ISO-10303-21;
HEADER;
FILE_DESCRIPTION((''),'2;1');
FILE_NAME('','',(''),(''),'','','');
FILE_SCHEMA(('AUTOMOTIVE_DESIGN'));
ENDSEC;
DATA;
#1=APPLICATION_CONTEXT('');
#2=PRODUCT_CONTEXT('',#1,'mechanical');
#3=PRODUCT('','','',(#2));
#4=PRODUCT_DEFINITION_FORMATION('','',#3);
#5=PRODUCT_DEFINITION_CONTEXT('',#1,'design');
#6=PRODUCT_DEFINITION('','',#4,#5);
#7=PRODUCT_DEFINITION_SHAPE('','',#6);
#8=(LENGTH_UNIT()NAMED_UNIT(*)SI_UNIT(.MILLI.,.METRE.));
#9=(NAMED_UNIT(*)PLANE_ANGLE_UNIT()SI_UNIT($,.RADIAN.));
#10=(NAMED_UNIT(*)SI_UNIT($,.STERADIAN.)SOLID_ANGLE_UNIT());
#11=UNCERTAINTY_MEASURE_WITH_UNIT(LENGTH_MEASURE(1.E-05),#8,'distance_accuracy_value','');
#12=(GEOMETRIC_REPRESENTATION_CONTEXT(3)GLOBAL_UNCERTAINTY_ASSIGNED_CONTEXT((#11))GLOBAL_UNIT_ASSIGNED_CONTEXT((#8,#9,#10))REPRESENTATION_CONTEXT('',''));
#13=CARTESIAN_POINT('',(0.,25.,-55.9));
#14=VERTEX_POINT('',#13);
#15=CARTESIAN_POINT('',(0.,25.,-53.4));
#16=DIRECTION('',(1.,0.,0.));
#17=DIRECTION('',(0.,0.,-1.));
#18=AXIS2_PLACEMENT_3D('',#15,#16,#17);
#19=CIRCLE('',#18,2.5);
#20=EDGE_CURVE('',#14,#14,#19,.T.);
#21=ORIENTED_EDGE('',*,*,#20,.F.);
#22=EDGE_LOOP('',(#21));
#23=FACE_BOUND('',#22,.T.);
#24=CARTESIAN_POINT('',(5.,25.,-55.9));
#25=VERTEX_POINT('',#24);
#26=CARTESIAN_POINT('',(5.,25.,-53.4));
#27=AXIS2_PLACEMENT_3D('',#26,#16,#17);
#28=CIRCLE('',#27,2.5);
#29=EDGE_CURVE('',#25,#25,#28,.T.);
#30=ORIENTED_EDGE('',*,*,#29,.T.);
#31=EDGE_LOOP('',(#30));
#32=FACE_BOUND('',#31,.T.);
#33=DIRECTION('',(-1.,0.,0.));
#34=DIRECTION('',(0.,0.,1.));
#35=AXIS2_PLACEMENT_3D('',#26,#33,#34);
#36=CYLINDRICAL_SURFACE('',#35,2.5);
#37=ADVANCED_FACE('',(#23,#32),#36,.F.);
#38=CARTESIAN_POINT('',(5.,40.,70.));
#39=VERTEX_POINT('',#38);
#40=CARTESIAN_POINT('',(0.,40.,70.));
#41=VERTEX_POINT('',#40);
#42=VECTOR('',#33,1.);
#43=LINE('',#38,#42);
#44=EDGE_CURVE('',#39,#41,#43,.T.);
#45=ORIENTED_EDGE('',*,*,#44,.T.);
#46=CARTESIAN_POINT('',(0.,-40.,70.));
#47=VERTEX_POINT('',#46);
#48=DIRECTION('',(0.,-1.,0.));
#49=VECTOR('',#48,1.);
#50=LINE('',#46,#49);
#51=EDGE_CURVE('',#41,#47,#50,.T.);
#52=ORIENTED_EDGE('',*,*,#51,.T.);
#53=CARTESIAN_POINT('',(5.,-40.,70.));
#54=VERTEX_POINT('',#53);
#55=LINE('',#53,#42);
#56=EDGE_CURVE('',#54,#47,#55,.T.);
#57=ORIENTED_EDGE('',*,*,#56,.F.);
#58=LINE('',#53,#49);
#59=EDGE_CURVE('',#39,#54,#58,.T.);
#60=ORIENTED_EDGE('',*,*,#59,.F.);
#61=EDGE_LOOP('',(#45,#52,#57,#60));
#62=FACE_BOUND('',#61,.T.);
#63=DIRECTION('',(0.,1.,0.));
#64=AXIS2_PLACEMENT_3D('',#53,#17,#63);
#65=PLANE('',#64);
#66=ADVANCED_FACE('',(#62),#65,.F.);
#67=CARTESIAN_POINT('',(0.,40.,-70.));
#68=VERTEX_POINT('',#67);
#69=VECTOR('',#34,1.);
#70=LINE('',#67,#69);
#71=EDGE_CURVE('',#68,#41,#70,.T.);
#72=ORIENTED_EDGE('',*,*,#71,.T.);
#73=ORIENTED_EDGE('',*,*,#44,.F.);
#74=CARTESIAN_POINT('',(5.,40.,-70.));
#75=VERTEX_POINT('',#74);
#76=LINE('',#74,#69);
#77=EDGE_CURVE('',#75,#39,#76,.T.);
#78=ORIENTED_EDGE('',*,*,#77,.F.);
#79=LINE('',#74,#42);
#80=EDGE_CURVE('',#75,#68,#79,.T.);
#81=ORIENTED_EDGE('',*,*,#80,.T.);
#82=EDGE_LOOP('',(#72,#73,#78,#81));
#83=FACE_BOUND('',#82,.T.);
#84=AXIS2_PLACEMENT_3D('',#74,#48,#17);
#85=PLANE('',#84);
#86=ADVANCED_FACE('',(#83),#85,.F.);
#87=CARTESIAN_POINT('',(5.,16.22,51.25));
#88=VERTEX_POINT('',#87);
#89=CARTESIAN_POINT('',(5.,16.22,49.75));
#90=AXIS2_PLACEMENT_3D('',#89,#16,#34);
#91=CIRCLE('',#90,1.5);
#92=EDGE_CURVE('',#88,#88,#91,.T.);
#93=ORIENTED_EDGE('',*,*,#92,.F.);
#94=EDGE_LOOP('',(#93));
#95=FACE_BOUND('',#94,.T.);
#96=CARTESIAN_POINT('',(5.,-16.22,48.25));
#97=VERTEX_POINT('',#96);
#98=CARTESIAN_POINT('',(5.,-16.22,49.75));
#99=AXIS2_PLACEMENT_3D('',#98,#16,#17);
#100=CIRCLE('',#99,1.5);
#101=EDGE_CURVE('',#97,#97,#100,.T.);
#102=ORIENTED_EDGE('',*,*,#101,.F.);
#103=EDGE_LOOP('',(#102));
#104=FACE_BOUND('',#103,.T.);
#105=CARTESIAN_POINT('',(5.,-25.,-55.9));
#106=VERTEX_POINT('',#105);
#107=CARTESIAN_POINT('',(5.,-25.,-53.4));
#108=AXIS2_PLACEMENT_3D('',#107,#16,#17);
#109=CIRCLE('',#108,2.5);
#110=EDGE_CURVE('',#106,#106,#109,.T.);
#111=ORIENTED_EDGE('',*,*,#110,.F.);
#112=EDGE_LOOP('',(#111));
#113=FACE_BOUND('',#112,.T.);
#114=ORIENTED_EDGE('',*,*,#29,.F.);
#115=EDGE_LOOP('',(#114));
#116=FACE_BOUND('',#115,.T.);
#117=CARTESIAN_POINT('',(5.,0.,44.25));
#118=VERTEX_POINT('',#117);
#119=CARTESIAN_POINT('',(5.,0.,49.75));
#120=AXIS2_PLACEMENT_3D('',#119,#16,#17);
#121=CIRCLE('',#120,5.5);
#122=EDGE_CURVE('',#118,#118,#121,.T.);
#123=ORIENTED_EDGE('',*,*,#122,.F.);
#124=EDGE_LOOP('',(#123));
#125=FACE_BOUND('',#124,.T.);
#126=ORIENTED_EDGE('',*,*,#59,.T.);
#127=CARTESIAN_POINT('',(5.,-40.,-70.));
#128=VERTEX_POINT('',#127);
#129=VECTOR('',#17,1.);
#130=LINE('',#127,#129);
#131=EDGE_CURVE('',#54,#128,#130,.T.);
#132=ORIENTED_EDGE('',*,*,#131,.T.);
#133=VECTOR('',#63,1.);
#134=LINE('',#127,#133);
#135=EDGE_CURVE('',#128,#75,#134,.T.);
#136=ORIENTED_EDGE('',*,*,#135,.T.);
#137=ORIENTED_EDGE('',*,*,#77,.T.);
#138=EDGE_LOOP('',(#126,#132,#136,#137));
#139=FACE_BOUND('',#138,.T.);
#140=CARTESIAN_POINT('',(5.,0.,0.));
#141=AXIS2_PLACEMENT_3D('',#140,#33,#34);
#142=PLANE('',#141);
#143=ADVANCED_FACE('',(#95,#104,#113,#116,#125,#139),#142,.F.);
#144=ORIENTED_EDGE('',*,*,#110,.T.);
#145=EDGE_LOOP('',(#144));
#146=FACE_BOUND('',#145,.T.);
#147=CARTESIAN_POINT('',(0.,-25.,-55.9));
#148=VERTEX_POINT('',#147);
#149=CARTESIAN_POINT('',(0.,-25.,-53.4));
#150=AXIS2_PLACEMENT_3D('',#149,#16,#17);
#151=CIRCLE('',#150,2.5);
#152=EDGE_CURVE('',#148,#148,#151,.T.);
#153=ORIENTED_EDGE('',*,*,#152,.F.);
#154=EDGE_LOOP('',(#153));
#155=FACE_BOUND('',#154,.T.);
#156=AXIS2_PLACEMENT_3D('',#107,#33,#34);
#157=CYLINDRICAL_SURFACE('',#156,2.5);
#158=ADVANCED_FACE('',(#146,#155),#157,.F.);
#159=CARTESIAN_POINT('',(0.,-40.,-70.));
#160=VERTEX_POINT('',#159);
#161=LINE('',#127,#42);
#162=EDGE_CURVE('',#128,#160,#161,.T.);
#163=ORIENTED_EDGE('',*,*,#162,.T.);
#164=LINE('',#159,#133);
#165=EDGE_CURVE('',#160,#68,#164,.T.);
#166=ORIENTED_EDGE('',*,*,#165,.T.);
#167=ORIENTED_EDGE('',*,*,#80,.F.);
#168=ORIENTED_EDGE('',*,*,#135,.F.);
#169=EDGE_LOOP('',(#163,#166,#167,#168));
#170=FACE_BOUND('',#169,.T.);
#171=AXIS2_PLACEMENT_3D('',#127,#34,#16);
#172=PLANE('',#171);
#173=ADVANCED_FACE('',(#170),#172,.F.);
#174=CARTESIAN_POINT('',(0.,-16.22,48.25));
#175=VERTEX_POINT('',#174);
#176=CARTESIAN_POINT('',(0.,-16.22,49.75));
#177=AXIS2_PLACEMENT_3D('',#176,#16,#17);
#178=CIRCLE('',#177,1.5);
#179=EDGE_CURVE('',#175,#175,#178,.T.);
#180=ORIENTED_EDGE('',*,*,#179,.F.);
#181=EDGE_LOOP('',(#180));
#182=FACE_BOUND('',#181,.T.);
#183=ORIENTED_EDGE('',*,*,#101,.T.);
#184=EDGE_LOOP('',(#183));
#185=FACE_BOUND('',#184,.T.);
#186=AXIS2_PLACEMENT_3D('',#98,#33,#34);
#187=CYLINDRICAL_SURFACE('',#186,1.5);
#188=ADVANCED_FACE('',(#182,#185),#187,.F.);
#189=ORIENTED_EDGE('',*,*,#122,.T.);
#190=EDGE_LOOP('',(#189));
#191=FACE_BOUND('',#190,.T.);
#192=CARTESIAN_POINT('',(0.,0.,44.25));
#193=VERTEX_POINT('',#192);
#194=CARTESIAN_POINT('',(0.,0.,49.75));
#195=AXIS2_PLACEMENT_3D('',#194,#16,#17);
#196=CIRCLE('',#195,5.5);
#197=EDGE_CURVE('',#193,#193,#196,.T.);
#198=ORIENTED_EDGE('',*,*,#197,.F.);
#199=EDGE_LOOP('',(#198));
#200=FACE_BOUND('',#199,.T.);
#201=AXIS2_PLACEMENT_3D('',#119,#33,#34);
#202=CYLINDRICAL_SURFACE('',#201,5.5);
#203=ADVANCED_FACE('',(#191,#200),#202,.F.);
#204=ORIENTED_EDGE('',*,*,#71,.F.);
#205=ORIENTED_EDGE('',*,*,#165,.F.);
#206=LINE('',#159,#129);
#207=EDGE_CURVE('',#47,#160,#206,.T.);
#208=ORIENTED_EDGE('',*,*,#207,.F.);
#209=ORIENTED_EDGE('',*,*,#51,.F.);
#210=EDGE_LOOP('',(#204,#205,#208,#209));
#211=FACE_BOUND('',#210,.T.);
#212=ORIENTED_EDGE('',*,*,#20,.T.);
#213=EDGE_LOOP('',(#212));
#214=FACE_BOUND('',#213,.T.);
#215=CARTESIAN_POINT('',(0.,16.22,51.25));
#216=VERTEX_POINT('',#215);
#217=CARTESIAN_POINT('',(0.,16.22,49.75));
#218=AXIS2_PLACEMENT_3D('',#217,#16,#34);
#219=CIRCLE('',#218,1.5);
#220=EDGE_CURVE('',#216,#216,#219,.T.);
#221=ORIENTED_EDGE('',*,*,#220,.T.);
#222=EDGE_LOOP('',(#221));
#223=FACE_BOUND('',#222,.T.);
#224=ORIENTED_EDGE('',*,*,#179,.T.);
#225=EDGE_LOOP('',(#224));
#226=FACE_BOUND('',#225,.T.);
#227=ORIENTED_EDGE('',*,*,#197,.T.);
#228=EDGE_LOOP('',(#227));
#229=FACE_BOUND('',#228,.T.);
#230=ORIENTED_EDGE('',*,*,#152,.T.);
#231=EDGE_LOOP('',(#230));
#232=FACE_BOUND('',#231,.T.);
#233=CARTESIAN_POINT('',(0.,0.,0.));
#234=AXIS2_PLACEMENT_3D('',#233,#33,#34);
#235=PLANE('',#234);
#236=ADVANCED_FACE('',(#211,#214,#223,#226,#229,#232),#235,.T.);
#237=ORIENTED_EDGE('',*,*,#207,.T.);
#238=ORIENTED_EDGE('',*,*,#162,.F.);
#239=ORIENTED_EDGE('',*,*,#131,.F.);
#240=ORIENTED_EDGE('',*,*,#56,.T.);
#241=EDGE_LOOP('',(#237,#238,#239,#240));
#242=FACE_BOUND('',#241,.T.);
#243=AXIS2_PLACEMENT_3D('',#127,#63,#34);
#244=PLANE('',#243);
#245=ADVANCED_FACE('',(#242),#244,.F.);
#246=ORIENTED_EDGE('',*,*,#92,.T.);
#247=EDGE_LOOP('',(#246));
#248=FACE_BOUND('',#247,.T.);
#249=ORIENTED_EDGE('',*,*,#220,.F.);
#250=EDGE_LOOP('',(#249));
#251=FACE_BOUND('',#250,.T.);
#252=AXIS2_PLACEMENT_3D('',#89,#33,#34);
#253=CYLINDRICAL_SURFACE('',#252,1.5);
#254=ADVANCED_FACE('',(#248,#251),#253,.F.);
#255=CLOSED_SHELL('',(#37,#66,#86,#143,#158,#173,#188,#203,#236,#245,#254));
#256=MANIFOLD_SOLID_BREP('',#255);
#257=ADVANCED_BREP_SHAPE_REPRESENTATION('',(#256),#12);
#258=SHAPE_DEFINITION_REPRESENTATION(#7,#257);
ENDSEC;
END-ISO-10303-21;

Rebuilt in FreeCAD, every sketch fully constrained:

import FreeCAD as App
import Part
import Sketcher

V = App.Vector
Q = App.Units.Quantity

doc = App.newDocument("Part")
params = doc.addObject("Spreadsheet::Sheet", "Params")
for row, (alias, value) in enumerate([
    ("sketch1_diameter", "5 mm"),
    ("sketch1_diameter2", "3 mm"),
    ("sketch1_diameter3", "11 mm"),
    ("sketch1_width", "80 mm"),
    ("sketch1_height", "140 mm"),
    ("pad1_length", "5 mm"),
], start=1):
    params.set(f"A{row}", alias)
    params.set(f"B{row}", "=" + value)
    params.setAlias(f"B{row}", alias)

body = doc.addObject("PartDesign::Body", "Body")

sketch1 = body.newObject("Sketcher::SketchObject", "Sketch")
sketch1.AttachmentSupport = (doc.getObject("YZ_Plane"), [""])
sketch1.MapMode = "FlatFace"
sketch1.addGeometry([
    Part.LineSegment(V(-40, 70, 0), V(-40, -70, 0)),
    Part.LineSegment(V(-40, -70, 0), V(40, -70, 0)),
    Part.LineSegment(V(40, -70, 0), V(40, 70, 0)),
    Part.LineSegment(V(40, 70, 0), V(-40, 70, 0)),
    Part.Circle(V(-25, -53.4, 0), V(0, 0, 1), 2.5),
    Part.Circle(V(25, -53.4, 0), V(0, 0, 1), 2.5),
    Part.Circle(V(-16.2, 49.8, 0), V(0, 0, 1), 1.5),
    Part.Circle(V(0, 49.8, 0), V(0, 0, 1), 5.5),
    Part.Circle(V(16.2, 49.8, 0), V(0, 0, 1), 1.5),
], False)
sketch1.addConstraint([
    Sketcher.Constraint("Coincident", 0, 2, 1, 1),
    Sketcher.Constraint("Coincident", 1, 2, 2, 1),
    Sketcher.Constraint("Coincident", 2, 2, 3, 1),
    Sketcher.Constraint("Coincident", 3, 2, 0, 1),
    Sketcher.Constraint("Vertical", 0),
    Sketcher.Constraint("Horizontal", 1),
    Sketcher.Constraint("Vertical", 2),
    Sketcher.Constraint("Horizontal", 3),
    Sketcher.Constraint("Equal", 4, 5),
    Sketcher.Constraint("Equal", 6, 8),
    Sketcher.Constraint("Symmetric", 0, 2, 2, 2, -1, 1),
    Sketcher.Constraint("Symmetric", 4, 3, 5, 3, -2),
    Sketcher.Constraint("Symmetric", 6, 3, 8, 3, -2),
    Sketcher.Constraint("PointOnObject", 7, 3, -2),
    Sketcher.Constraint("Horizontal", 6, 3, 7, 3),
    Sketcher.Constraint("Diameter", 4, Q("5 mm")),
    Sketcher.Constraint("Diameter", 6, Q("3 mm")),
    Sketcher.Constraint("Diameter", 7, Q("11 mm")),
    Sketcher.Constraint("DistanceX", 1, 1, 1, 2, Q("80 mm")),
    Sketcher.Constraint("DistanceY", 0, 2, 0, 1, Q("140 mm")),
    Sketcher.Constraint("DistanceX", 4, 3, -1, 1, Q("25 mm")),
    Sketcher.Constraint("DistanceY", 4, 3, -1, 1, Q("53.4 mm")),
    Sketcher.Constraint("DistanceX", 6, 3, -1, 1, Q("16.22 mm")),
    Sketcher.Constraint("DistanceY", -1, 1, 6, 3, Q("49.75 mm")),
])
sketch1.setExpression("Constraints[15]", "Params.sketch1_diameter")
sketch1.setExpression("Constraints[16]", "Params.sketch1_diameter2")
sketch1.setExpression("Constraints[17]", "Params.sketch1_diameter3")
sketch1.setExpression("Constraints[18]", "Params.sketch1_width")
sketch1.setExpression("Constraints[19]", "Params.sketch1_height")
pad1 = body.newObject("PartDesign::Pad", "Pad")
pad1.Profile = sketch1
pad1.setExpression("Length", "Params.pad1_length")

doc.recompute()
